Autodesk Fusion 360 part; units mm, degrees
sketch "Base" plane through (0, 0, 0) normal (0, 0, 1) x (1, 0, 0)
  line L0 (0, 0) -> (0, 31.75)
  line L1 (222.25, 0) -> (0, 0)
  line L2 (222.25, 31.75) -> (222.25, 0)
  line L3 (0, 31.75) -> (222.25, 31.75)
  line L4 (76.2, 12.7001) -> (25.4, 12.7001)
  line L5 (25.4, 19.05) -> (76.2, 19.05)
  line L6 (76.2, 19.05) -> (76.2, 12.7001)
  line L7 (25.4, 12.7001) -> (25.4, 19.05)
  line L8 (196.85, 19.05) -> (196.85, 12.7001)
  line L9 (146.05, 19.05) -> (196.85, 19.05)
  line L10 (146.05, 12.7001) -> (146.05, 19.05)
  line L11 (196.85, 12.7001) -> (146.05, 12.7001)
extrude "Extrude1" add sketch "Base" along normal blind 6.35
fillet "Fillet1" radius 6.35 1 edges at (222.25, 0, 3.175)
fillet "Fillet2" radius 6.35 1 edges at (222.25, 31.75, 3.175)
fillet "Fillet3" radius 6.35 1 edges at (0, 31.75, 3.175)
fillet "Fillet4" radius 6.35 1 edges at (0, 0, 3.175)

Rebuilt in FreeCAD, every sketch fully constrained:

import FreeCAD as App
import Part
import Sketcher
Q = App.Units.Quantity


def edges_at(feature, points):
    """Names of the edges that pass closest to the given points."""
    edges = feature.Shape.Edges
    near = lambda p: min(range(len(edges)), key=lambda i: edges[i].distToShape(Part.Vertex(*p))[0])
    return sorted({f"Edge{near(p) + 1}" for p in points})

doc = App.newDocument("Part")
body = doc.addObject("PartDesign::Body", "Body")

# Sketch on XY plane
sketch1 = body.newObject("Sketcher::SketchObject", "Sketch")
sketch1.AttachmentSupport = (doc.getObject("XY_Plane"), [""])
sketch1.MapMode = "FlatFace"
sketch1.addGeometry([
    Part.LineSegment(App.Vector(0, 32, 0), App.Vector(0, 0, 0)),  # 0
    Part.LineSegment(App.Vector(0, 0, 0), App.Vector(222, 0, 0)),  # 1
    Part.LineSegment(App.Vector(222, 0, 0), App.Vector(222, 32, 0)),  # 2
    Part.LineSegment(App.Vector(222, 32, 0), App.Vector(0, 32, 0)),  # 3
    Part.LineSegment(App.Vector(76, 19, 0), App.Vector(76, 13, 0)),  # 4
    Part.LineSegment(App.Vector(76, 13, 0), App.Vector(25, 13, 0)),  # 5
    Part.LineSegment(App.Vector(25, 13, 0), App.Vector(25, 19, 0)),  # 6
    Part.LineSegment(App.Vector(25, 19, 0), App.Vector(76, 19, 0)),  # 7
    Part.LineSegment(App.Vector(146, 19, 0), App.Vector(197, 19, 0)),  # 8
    Part.LineSegment(App.Vector(197, 19, 0), App.Vector(197, 13, 0)),  # 9
    Part.LineSegment(App.Vector(197, 13, 0), App.Vector(146, 13, 0)),  # 10
    Part.LineSegment(App.Vector(146, 13, 0), App.Vector(146, 19, 0)),  # 11
], False)
sketch1.addConstraint([
    Sketcher.Constraint("Coincident", 0, 2, 1, 1),
    Sketcher.Constraint("Coincident", 1, 2, 2, 1),
    Sketcher.Constraint("Coincident", 2, 2, 3, 1),
    Sketcher.Constraint("Coincident", 3, 2, 0, 1),
    Sketcher.Constraint("Coincident", 4, 2, 5, 1),
    Sketcher.Constraint("Coincident", 5, 2, 6, 1),
    Sketcher.Constraint("Coincident", 6, 2, 7, 1),
    Sketcher.Constraint("Coincident", 7, 2, 4, 1),
    Sketcher.Constraint("Coincident", 8, 2, 9, 1),
    Sketcher.Constraint("Coincident", 9, 2, 10, 1),
    Sketcher.Constraint("Coincident", 10, 2, 11, 1),
    Sketcher.Constraint("Coincident", 11, 2, 8, 1),
    Sketcher.Constraint("Vertical", 0),
    Sketcher.Constraint("Horizontal", 1),
    Sketcher.Constraint("Vertical", 2),
    Sketcher.Constraint("Horizontal", 3),
    Sketcher.Constraint("Vertical", 4),
    Sketcher.Constraint("Horizontal", 5),
    Sketcher.Constraint("Vertical", 6),
    Sketcher.Constraint("Horizontal", 7),
    Sketcher.Constraint("Horizontal", 8),
    Sketcher.Constraint("Vertical", 9),
    Sketcher.Constraint("Horizontal", 10),
    Sketcher.Constraint("Vertical", 11),
    Sketcher.Constraint("Coincident", 0, 2, -1, 1),
    Sketcher.Constraint("Horizontal", 7, 2, 8, 2),
    Sketcher.Constraint("Horizontal", 5, 2, 9, 2),
    Sketcher.Constraint("Equal", 7, 8),
    Sketcher.Constraint("DistanceX", 5, 2, 5, 1, Q("2 in")),
    Sketcher.Constraint("DistanceX", -1, 1, 4, 2, Q("3 in")),
    Sketcher.Constraint("DistanceX", 8, 2, 2, 2, Q("1 in")),
    Sketcher.Constraint("DistanceX", 1, 1, 1, 2, Q("8.75 in")),
    Sketcher.Constraint("DistanceY", 0, 2, 0, 1, Q("1.25 in")),
    Sketcher.Constraint("DistanceY", 4, 2, 4, 1, Q("0.25 in")),
    Sketcher.Constraint("DistanceY", -1, 1, 4, 2, Q("0.5 in")),
])
pad1 = body.newObject("PartDesign::Pad", "Pad")
pad1.Profile = sketch1
pad1.Length = Q("0.25 in")
doc.recompute()

fillet = body.newObject("PartDesign::Fillet", "Fillet")
fillet.Base = (pad1, edges_at(pad1, [(222.25, 0, 3.175)]))
fillet.Radius = Q("0.25 in")
doc.recompute()

fillet2 = body.newObject("PartDesign::Fillet", "Fillet001")
fillet2.Base = (fillet, edges_at(fillet, [(222.25, 31.75, 3.175)]))
fillet2.Radius = Q("0.25 in")
doc.recompute()

fillet3 = body.newObject("PartDesign::Fillet", "Fillet002")
fillet3.Base = (fillet2, edges_at(fillet2, [(0, 31.75, 3.175)]))
fillet3.Radius = Q("0.25 in")
doc.recompute()

fillet4 = body.newObject("PartDesign::Fillet", "Fillet003")
fillet4.Base = (fillet3, edges_at(fillet3, [(0, 0, 3.175)]))
fillet4.Radius = Q("0.25 in")

doc.recompute()
